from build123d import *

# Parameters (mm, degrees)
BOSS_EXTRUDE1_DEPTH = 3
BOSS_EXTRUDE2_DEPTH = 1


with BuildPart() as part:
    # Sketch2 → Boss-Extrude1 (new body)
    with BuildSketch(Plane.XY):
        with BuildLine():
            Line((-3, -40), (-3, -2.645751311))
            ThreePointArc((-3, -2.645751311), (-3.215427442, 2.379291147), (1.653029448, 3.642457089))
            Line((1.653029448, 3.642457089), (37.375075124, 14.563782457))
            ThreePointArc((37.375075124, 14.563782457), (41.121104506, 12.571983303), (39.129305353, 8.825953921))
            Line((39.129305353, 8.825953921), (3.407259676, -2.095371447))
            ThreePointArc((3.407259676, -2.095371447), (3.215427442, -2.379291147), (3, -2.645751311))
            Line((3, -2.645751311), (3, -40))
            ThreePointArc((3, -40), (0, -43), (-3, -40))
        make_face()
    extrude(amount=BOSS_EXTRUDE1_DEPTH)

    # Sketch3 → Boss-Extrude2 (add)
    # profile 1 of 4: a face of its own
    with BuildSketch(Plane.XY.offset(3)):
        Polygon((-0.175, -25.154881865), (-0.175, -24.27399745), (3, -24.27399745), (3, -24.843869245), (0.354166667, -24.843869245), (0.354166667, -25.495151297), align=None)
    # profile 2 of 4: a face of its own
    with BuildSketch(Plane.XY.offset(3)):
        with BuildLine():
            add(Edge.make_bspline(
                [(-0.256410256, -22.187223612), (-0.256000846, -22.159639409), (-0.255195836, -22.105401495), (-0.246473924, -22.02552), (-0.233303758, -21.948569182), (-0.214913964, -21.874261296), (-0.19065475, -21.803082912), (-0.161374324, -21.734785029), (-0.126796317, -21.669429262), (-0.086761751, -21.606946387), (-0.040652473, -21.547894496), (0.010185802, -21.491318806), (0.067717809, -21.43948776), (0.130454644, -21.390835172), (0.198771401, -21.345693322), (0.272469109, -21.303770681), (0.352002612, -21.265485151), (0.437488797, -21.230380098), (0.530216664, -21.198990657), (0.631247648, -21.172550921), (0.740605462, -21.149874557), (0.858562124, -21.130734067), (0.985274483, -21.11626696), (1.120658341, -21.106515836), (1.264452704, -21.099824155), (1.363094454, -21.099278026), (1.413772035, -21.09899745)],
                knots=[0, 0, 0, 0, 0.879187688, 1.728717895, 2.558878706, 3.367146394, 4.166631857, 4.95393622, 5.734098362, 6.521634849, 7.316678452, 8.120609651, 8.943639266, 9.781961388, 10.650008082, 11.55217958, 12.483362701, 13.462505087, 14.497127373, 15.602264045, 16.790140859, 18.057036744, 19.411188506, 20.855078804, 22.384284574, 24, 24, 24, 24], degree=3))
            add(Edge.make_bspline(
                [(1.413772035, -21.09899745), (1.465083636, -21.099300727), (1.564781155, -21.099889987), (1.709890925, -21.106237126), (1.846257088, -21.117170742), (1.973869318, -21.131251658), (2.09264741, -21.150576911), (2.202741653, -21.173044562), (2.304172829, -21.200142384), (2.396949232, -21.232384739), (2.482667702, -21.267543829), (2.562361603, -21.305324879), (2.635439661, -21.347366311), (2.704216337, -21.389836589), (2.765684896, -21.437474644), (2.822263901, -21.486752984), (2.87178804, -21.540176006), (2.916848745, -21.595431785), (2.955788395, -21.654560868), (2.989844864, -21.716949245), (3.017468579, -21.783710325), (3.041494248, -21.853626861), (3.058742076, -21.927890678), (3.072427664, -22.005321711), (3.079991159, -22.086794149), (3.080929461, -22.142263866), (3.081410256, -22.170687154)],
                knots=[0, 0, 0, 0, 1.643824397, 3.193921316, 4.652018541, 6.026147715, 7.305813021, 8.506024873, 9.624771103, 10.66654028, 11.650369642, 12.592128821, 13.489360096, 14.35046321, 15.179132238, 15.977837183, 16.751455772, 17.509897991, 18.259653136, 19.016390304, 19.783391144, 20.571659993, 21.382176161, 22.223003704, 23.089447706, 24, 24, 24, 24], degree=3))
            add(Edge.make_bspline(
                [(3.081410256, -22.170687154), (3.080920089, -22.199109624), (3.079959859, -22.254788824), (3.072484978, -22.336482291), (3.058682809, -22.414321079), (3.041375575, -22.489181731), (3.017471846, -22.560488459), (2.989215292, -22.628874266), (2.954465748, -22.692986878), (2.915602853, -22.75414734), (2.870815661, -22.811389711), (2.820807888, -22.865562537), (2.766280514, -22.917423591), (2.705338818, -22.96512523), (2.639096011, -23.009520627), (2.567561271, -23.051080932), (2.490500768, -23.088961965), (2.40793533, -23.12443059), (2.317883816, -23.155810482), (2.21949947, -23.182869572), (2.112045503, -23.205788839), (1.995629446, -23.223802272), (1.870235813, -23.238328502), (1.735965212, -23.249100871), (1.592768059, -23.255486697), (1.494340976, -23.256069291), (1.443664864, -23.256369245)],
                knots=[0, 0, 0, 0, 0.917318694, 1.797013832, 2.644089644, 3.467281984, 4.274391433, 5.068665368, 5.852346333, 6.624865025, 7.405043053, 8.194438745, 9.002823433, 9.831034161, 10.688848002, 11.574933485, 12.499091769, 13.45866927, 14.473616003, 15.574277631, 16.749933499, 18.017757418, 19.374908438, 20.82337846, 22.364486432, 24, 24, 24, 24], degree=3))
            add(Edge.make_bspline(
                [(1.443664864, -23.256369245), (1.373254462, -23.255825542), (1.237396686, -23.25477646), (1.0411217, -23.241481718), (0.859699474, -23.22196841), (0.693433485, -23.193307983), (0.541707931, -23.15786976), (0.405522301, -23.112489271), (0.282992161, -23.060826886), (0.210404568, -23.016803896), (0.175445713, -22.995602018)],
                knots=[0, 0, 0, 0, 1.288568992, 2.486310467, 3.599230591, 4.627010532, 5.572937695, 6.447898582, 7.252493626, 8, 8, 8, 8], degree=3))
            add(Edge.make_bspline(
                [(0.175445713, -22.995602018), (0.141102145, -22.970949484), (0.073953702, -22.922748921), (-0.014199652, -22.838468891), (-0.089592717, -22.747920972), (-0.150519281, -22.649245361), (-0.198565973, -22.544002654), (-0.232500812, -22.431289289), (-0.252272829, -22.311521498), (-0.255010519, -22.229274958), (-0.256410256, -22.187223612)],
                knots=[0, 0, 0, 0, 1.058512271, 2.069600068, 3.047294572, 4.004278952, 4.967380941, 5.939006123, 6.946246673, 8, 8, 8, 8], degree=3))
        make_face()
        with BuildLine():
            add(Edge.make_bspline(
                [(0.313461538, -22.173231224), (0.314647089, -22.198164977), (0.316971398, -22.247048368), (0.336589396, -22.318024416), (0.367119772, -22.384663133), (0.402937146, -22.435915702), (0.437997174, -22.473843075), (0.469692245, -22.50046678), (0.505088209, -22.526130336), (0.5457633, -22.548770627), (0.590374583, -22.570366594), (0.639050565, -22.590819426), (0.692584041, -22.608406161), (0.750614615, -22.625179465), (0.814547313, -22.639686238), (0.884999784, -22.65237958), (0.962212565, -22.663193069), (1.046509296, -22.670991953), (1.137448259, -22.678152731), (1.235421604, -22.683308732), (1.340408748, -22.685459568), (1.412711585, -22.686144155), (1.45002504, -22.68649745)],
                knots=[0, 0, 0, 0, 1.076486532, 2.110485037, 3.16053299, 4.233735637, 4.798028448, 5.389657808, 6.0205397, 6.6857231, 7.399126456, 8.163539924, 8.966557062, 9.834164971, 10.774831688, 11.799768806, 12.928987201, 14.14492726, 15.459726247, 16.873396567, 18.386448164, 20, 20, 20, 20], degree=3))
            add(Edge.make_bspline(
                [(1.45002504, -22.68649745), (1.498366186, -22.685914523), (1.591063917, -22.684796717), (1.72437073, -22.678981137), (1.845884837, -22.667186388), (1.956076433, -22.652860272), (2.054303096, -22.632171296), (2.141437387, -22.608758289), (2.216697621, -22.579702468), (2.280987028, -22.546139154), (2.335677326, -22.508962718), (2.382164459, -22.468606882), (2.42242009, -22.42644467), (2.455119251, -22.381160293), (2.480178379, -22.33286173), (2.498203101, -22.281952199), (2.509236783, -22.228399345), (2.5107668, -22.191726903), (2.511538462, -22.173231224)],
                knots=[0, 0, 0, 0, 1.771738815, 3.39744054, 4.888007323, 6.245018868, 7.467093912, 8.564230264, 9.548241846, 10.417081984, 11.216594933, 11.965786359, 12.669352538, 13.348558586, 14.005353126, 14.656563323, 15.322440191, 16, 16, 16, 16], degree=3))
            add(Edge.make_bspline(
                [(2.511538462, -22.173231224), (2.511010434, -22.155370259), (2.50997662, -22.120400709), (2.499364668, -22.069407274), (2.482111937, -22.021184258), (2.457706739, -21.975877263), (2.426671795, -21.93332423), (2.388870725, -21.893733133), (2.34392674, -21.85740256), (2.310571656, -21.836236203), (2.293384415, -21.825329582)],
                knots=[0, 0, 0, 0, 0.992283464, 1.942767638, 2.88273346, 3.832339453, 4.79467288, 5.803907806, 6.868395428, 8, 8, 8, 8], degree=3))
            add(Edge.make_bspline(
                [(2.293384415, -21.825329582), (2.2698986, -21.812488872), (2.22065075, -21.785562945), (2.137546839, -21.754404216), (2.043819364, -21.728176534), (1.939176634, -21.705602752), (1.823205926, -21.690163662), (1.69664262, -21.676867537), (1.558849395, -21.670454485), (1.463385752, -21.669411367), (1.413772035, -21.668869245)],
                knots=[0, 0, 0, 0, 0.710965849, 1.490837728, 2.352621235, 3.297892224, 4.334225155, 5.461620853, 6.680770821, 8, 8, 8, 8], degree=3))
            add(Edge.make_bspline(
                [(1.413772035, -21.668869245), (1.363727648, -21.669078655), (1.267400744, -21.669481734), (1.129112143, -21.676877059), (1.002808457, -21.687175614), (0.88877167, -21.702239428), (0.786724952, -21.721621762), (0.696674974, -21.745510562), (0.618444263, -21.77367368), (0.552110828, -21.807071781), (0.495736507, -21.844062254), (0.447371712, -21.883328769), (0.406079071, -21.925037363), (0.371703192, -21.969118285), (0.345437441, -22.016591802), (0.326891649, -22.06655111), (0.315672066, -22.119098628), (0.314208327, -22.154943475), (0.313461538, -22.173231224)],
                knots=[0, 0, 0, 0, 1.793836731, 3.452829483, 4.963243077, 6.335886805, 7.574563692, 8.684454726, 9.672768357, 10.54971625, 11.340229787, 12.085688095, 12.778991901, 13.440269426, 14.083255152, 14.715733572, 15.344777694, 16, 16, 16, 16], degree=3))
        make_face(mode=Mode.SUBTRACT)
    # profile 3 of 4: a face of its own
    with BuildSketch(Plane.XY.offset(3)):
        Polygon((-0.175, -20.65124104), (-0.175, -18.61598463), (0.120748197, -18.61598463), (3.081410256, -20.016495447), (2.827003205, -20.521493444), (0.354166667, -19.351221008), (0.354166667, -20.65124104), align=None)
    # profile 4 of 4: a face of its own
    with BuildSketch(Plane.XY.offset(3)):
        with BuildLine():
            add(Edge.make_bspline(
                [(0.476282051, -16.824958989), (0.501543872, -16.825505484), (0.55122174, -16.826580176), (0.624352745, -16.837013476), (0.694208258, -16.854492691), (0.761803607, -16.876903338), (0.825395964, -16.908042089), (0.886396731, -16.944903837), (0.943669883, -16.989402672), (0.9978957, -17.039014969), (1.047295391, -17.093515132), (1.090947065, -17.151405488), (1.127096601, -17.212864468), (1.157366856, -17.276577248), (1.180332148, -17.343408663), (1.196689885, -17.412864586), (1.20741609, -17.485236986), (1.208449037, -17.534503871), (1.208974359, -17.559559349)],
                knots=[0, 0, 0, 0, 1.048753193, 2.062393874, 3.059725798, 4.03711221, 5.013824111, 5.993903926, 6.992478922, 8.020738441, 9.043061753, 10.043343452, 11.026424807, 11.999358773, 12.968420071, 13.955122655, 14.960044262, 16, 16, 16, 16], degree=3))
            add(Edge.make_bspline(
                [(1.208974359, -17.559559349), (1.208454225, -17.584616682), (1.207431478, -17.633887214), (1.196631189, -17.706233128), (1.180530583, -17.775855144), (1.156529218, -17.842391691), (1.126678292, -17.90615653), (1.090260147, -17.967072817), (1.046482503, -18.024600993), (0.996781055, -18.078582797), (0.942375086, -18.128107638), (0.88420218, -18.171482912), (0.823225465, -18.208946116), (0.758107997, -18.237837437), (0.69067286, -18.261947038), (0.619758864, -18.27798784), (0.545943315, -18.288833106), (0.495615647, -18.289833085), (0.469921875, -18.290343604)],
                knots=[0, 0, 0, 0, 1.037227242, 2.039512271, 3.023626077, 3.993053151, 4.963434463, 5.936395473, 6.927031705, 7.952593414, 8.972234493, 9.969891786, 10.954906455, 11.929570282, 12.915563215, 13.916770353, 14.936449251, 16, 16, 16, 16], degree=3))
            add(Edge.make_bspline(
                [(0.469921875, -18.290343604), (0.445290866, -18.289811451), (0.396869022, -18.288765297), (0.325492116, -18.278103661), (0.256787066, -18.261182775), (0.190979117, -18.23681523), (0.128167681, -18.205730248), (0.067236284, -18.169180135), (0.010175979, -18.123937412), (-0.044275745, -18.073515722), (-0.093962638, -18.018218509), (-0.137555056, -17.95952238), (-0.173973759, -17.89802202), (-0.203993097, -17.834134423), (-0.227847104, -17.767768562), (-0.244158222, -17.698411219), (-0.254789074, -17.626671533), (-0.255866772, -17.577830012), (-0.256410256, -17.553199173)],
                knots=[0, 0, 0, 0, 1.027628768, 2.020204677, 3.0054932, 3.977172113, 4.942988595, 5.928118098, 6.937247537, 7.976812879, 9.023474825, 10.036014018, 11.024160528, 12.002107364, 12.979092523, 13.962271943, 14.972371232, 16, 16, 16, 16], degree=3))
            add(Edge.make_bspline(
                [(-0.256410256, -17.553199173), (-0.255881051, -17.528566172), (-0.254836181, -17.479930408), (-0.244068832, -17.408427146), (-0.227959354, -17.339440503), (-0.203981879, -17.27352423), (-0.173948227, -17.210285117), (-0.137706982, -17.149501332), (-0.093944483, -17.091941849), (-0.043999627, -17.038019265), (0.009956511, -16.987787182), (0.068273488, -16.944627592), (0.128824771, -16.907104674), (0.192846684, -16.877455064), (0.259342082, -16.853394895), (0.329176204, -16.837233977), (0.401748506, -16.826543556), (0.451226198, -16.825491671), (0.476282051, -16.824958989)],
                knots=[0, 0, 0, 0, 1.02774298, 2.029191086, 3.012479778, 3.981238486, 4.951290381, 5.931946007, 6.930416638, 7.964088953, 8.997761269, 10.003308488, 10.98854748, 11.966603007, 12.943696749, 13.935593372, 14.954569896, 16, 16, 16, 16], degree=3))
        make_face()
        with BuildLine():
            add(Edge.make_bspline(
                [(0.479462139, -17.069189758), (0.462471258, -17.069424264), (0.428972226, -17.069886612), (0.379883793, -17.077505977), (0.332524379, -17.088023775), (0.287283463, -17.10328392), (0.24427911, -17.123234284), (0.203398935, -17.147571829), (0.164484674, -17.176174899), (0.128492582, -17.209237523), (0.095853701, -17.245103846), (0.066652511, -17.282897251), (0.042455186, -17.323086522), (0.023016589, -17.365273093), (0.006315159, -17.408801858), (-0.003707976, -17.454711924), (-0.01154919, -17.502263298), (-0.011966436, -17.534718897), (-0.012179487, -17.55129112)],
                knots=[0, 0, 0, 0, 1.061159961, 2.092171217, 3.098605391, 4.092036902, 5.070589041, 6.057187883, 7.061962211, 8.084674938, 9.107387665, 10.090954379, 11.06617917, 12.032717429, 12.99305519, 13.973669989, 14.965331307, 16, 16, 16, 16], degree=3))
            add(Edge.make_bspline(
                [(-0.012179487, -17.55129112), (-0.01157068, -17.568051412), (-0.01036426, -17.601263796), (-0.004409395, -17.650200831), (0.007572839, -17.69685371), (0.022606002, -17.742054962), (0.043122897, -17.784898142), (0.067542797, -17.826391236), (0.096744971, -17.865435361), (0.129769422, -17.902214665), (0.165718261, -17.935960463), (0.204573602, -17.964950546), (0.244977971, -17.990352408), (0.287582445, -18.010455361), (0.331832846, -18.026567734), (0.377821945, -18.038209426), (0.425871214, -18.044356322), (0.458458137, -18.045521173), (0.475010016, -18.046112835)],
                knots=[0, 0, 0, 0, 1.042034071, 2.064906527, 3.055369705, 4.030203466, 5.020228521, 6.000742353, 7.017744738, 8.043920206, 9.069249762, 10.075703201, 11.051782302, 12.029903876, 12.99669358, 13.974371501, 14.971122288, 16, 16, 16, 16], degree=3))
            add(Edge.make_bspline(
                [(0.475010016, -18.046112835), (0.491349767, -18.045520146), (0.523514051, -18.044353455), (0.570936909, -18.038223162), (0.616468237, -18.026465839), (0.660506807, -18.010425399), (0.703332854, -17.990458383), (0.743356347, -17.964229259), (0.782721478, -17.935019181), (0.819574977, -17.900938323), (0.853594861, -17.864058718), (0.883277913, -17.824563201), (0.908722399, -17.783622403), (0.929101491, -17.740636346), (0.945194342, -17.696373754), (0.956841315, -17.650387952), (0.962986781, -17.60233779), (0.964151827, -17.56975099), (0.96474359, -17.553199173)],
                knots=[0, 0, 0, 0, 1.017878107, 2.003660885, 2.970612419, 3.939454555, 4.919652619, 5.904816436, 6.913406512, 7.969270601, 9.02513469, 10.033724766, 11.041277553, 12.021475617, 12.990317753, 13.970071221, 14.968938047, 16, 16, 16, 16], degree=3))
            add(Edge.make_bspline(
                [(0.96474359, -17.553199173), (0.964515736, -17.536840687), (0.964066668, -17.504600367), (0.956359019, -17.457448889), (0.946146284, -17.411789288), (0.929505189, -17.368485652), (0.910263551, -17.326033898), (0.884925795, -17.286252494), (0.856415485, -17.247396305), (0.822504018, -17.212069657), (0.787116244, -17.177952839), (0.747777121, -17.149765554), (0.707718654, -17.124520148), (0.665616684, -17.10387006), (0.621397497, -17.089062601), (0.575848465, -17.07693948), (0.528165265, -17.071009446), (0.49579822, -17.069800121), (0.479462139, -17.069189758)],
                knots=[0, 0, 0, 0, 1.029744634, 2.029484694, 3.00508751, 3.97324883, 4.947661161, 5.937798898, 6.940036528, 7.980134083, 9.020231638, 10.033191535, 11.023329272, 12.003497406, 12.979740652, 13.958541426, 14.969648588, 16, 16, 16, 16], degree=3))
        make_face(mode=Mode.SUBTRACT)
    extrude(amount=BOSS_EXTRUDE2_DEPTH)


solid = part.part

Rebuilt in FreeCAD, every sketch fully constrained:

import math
import FreeCAD as App
import Part
import Sketcher

V = App.Vector
Q = App.Units.Quantity

doc = App.newDocument("Part")
body = doc.addObject("PartDesign::Body", "Body")

# Sketch on XY plane
sketch1 = body.newObject("Sketcher::SketchObject", "Sketch")
sketch1.AttachmentSupport = (doc.getObject("XY_Plane"), [""])
sketch1.MapMode = "FlatFace"
sketch1.addGeometry([
    Part.LineSegment(V(-3, -2.6, 0), V(-3, -40, 0)),  # 0
    Part.ArcOfCircle(Part.Circle(V(0, -40, 0), V(0, 0, 1), 3), math.radians(180), math.radians(360)),  # 1
    Part.LineSegment(V(3, -40, 0), V(3, -2.6, 0)),  # 2
    Part.ArcOfCircle(Part.Circle(V(0, 0, 0), V(0, 0, 1), 4), math.radians(-41.41), math.radians(-31.59)),  # 3
    Part.LineSegment(V(3.4, -2.1, 0), V(39.1, 8.8, 0)),  # 4
    Part.ArcOfCircle(Part.Circle(V(38.3, 11.7, 0), V(0, 0, 1), 3), math.radians(-73), math.radians(107)),  # 5
    Part.LineSegment(V(37.4, 14.6, 0), V(1.7, 3.6, 0)),  # 6
    Part.ArcOfCircle(Part.Circle(V(0, 0, 0), V(0, 0, 1), 4), math.radians(66), math.radians(221)),  # 7
], False)
sketch1.addConstraint([
    Sketcher.Constraint("Tangent", 0, 2, 1, 1),
    Sketcher.Constraint("Tangent", 1, 2, 2, 1),
    Sketcher.Constraint("Coincident", 2, 2, 3, 1),
    Sketcher.Constraint("Coincident", 3, 2, 4, 1),
    Sketcher.Constraint("Tangent", 4, 2, 5, 1),
    Sketcher.Constraint("Tangent", 5, 2, 6, 1),
    Sketcher.Constraint("Coincident", 6, 2, 7, 1),
    Sketcher.Constraint("Coincident", 7, 2, 0, 1),
    Sketcher.Constraint("Vertical", 0),
    Sketcher.Constraint("Vertical", 2),
    Sketcher.Constraint("Coincident", 3, 3, -1, 1),
    Sketcher.Constraint("Coincident", 7, 3, -1, 1),
    Sketcher.Constraint("Equal", 1, 5),
    Sketcher.Constraint("Equal", 3, 7),
    Sketcher.Constraint("PointOnObject", 1, 3, -2),
    Sketcher.Constraint("Parallel", 4, 6),
    Sketcher.Constraint("Equal", 4, 6),
    Sketcher.Constraint("Radius", 1, 3.0),
    Sketcher.Constraint("Radius", 3, 4.0),
    Sketcher.Constraint("Angle", 4, Q("17 deg")),
    Sketcher.Constraint("DistanceY", 1, 3, -1, 1, 40.0),
    Sketcher.Constraint("Distance", 4, 37.354249),
])
pad1 = body.newObject("PartDesign::Pad", "Pad")
pad1.Profile = sketch1
pad1.Length = 3

# Sketch on XY plane
sketch2 = body.newObject("Sketcher::SketchObject", "Sketch001")
sketch2.AttachmentSupport = (doc.getObject("XY_Plane"), [""])
sketch2.MapMode = "FlatFace"
sketch2.AttachmentOffset = App.Placement(V(0, 0, 3), App.Rotation())
sketch2.addGeometry([
    Part.LineSegment(V(-0.175, -24.273997, 0), V(-0.175, -25.154882, 0)),  # 0
    Part.LineSegment(V(-0.175, -25.154882, 0), V(0.354167, -25.495151, 0)),  # 1
    Part.LineSegment(V(0.354167, -25.495151, 0), V(0.354167, -24.843869, 0)),  # 2
    Part.LineSegment(V(0.354167, -24.843869, 0), V(3, -24.843869, 0)),  # 3
    Part.LineSegment(V(3, -24.843869, 0), V(3, -24.273997, 0)),  # 4
    Part.LineSegment(V(3, -24.273997, 0), V(-0.175, -24.273997, 0)),  # 5
    Part.BSplineCurve([V(-0.25641, -22.187224, 0), V(-0.256001, -22.159639, 0), V(-0.255196, -22.105401, 0), V(-0.246474, -22.02552, 0), V(-0.233304, -21.948569, 0), V(-0.214914, -21.874261, 0), V(-0.190655, -21.803083, 0), V(-0.161374, -21.734785, 0), V(-0.126796, -21.669429, 0), V(-0.086762, -21.606946, 0), V(-0.040652, -21.547894, 0), V(0.010186, -21.491319, 0), V(0.067718, -21.439488, 0), V(0.130455, -21.390835, 0), V(0.198771, -21.345693, 0), V(0.272469, -21.303771, 0), V(0.352003, -21.265485, 0), V(0.437489, -21.23038, 0), V(0.530217, -21.198991, 0), V(0.631248, -21.172551, 0), V(0.740605, -21.149875, 0), V(0.858562, -21.130734, 0), V(0.985274, -21.116267, 0), V(1.120658, -21.106516, 0), V(1.264453, -21.099824, 0), V(1.363094, -21.099278, 0), V(1.413772, -21.098997, 0)], [4, 1, 1, 1, 1, 1, 1, 1, 1, 1, 1, 1, 1, 1, 1, 1, 1, 1, 1, 1, 1, 1, 1, 1, 4], [0, 0.879187688, 1.728717895, 2.558878706, 3.367146394, 4.166631857, 4.95393622, 5.734098362, 6.521634849, 7.316678452, 8.120609651, 8.943639266, 9.781961388, 10.650008082, 11.55217958, 12.483362701, 13.462505087, 14.497127373, 15.602264045, 16.790140859, 18.057036744, 19.411188506, 20.855078804, 22.384284574, 24], False, 3, [1, 1, 1, 1, 1, 1, 1, 1, 1, 1, 1, 1, 1, 1, 1, 1, 1, 1, 1, 1, 1, 1, 1, 1, 1, 1, 1], False),  # 6
    Part.BSplineCurve([V(0.175446, -22.995602, 0), V(0.141102, -22.970949, 0), V(0.073954, -22.922749, 0), V(-0.0142, -22.838469, 0), V(-0.089593, -22.747921, 0), V(-0.150519, -22.649245, 0), V(-0.198566, -22.544003, 0), V(-0.232501, -22.431289, 0), V(-0.252273, -22.311521, 0), V(-0.255011, -22.229275, 0), V(-0.25641, -22.187224, 0)], [4, 1, 1, 1, 1, 1, 1, 1, 4], [0, 1.058512271, 2.069600068, 3.047294572, 4.004278952, 4.967380941, 5.939006123, 6.946246673, 8], False, 3, [1, 1, 1, 1, 1, 1, 1, 1, 1, 1, 1], False),  # 7
    Part.BSplineCurve([V(1.443665, -23.256369, 0), V(1.373254, -23.255826, 0), V(1.237397, -23.254776, 0), V(1.041122, -23.241482, 0), V(0.859699, -23.221968, 0), V(0.693433, -23.193308, 0), V(0.541708, -23.15787, 0), V(0.405522, -23.112489, 0), V(0.282992, -23.060827, 0), V(0.210405, -23.016804, 0), V(0.175446, -22.995602, 0)], [4, 1, 1, 1, 1, 1, 1, 1, 4], [0, 1.288568992, 2.486310467, 3.599230591, 4.627010532, 5.572937695, 6.447898582, 7.252493626, 8], False, 3, [1, 1, 1, 1, 1, 1, 1, 1, 1, 1, 1], False),  # 8
    Part.BSplineCurve([V(3.08141, -22.170687, 0), V(3.08092, -22.19911, 0), V(3.07996, -22.254789, 0), V(3.072485, -22.336482, 0), V(3.058683, -22.414321, 0), V(3.041376, -22.489182, 0), V(3.017472, -22.560488, 0), V(2.989215, -22.628874, 0), V(2.954466, -22.692987, 0), V(2.915603, -22.754147, 0), V(2.870816, -22.81139, 0), V(2.820808, -22.865563, 0), V(2.766281, -22.917424, 0), V(2.705339, -22.965125, 0), V(2.639096, -23.009521, 0), V(2.567561, -23.051081, 0), V(2.490501, -23.088962, 0), V(2.407935, -23.124431, 0), V(2.317884, -23.15581, 0), V(2.219499, -23.18287, 0), V(2.112046, -23.205789, 0), V(1.995629, -23.223802, 0), V(1.870236, -23.238329, 0), V(1.735965, -23.249101, 0), V(1.592768, -23.255487, 0), V(1.494341, -23.256069, 0), V(1.443665, -23.256369, 0)], [4, 1, 1, 1, 1, 1, 1, 1, 1, 1, 1, 1, 1, 1, 1, 1, 1, 1, 1, 1, 1, 1, 1, 1, 4], [0, 0.917318694, 1.797013832, 2.644089644, 3.467281984, 4.274391433, 5.068665368, 5.852346333, 6.624865025, 7.405043053, 8.194438745, 9.002823433, 9.831034161, 10.688848002, 11.574933485, 12.499091769, 13.45866927, 14.473616003, 15.574277631, 16.749933499, 18.017757418, 19.374908438, 20.82337846, 22.364486432, 24], False, 3, [1, 1, 1, 1, 1, 1, 1, 1, 1, 1, 1, 1, 1, 1, 1, 1, 1, 1, 1, 1, 1, 1, 1, 1, 1, 1, 1], False),  # 9
    Part.BSplineCurve([V(1.413772, -21.098997, 0), V(1.465084, -21.099301, 0), V(1.564781, -21.09989, 0), V(1.709891, -21.106237, 0), V(1.846257, -21.117171, 0), V(1.973869, -21.131252, 0), V(2.092647, -21.150577, 0), V(2.202742, -21.173045, 0), V(2.304173, -21.200142, 0), V(2.396949, -21.232385, 0), V(2.482668, -21.267544, 0), V(2.562362, -21.305325, 0), V(2.63544, -21.347366, 0), V(2.704216, -21.389837, 0), V(2.765685, -21.437475, 0), V(2.822264, -21.486753, 0), V(2.871788, -21.540176, 0), V(2.916849, -21.595432, 0), V(2.955788, -21.654561, 0), V(2.989845, -21.716949, 0), V(3.017469, -21.78371, 0), V(3.041494, -21.853627, 0), V(3.058742, -21.927891, 0), V(3.072428, -22.005322, 0), V(3.079991, -22.086794, 0), V(3.080929, -22.142264, 0), V(3.08141, -22.170687, 0)], [4, 1, 1, 1, 1, 1, 1, 1, 1, 1, 1, 1, 1, 1, 1, 1, 1, 1, 1, 1, 1, 1, 1, 1, 4], [0, 1.643824397, 3.193921316, 4.652018541, 6.026147715, 7.305813021, 8.506024873, 9.624771103, 10.66654028, 11.650369642, 12.592128821, 13.489360096, 14.35046321, 15.179132238, 15.977837183, 16.751455772, 17.509897991, 18.259653136, 19.016390304, 19.783391144, 20.571659993, 21.382176161, 22.223003704, 23.089447706, 24], False, 3, [1, 1, 1, 1, 1, 1, 1, 1, 1, 1, 1, 1, 1, 1, 1, 1, 1, 1, 1, 1, 1, 1, 1, 1, 1, 1, 1], False),  # 10
    Part.BSplineCurve([V(1.413772, -21.668869, 0), V(1.363728, -21.669079, 0), V(1.267401, -21.669482, 0), V(1.129112, -21.676877, 0), V(1.002808, -21.687176, 0), V(0.888772, -21.702239, 0), V(0.786725, -21.721622, 0), V(0.696675, -21.745511, 0), V(0.618444, -21.773674, 0), V(0.552111, -21.807072, 0), V(0.495737, -21.844062, 0), V(0.447372, -21.883329, 0), V(0.406079, -21.925037, 0), V(0.371703, -21.969118, 0), V(0.345437, -22.016592, 0), V(0.326892, -22.066551, 0), V(0.315672, -22.119099, 0), V(0.314208, -22.154943, 0), V(0.313462, -22.173231, 0)], [4, 1, 1, 1, 1, 1, 1, 1, 1, 1, 1, 1, 1, 1, 1, 1, 4], [0, 1.793836731, 3.452829483, 4.963243077, 6.335886805, 7.574563692, 8.684454726, 9.672768357, 10.54971625, 11.340229787, 12.085688095, 12.778991901, 13.440269426, 14.083255152, 14.715733572, 15.344777694, 16], False, 3, [1, 1, 1, 1, 1, 1, 1, 1, 1, 1, 1, 1, 1, 1, 1, 1, 1, 1, 1], False),  # 11
    Part.BSplineCurve([V(2.293384, -21.82533, 0), V(2.269899, -21.812489, 0), V(2.220651, -21.785563, 0), V(2.137547, -21.754404, 0), V(2.043819, -21.728177, 0), V(1.939177, -21.705603, 0), V(1.823206, -21.690164, 0), V(1.696643, -21.676868, 0), V(1.558849, -21.670454, 0), V(1.463386, -21.669411, 0), V(1.413772, -21.668869, 0)], [4, 1, 1, 1, 1, 1, 1, 1, 4], [0, 0.710965849, 1.490837728, 2.352621235, 3.297892224, 4.334225155, 5.461620853, 6.680770821, 8], False, 3, [1, 1, 1, 1, 1, 1, 1, 1, 1, 1, 1], False),  # 12
    Part.BSplineCurve([V(2.511538, -22.173231, 0), V(2.51101, -22.15537, 0), V(2.509977, -22.120401, 0), V(2.499365, -22.069407, 0), V(2.482112, -22.021184, 0), V(2.457707, -21.975877, 0), V(2.426672, -21.933324, 0), V(2.388871, -21.893733, 0), V(2.343927, -21.857403, 0), V(2.310572, -21.836236, 0), V(2.293384, -21.82533, 0)], [4, 1, 1, 1, 1, 1, 1, 1, 4], [0, 0.992283464, 1.942767638, 2.88273346, 3.832339453, 4.79467288, 5.803907806, 6.868395428, 8], False, 3, [1, 1, 1, 1, 1, 1, 1, 1, 1, 1, 1], False),  # 13
    Part.BSplineCurve([V(1.450025, -22.686497, 0), V(1.498366, -22.685915, 0), V(1.591064, -22.684797, 0), V(1.724371, -22.678981, 0), V(1.845885, -22.667186, 0), V(1.956076, -22.65286, 0), V(2.054303, -22.632171, 0), V(2.141437, -22.608758, 0), V(2.216698, -22.579702, 0), V(2.280987, -22.546139, 0), V(2.335677, -22.508963, 0), V(2.382164, -22.468607, 0), V(2.42242, -22.426445, 0), V(2.455119, -22.38116, 0), V(2.480178, -22.332862, 0), V(2.498203, -22.281952, 0), V(2.509237, -22.228399, 0), V(2.510767, -22.191727, 0), V(2.511538, -22.173231, 0)], [4, 1, 1, 1, 1, 1, 1, 1, 1, 1, 1, 1, 1, 1, 1, 1, 4], [0, 1.771738815, 3.39744054, 4.888007323, 6.245018868, 7.467093912, 8.564230264, 9.548241846, 10.417081984, 11.216594933, 11.965786359, 12.669352538, 13.348558586, 14.005353126, 14.656563323, 15.322440191, 16], False, 3, [1, 1, 1, 1, 1, 1, 1, 1, 1, 1, 1, 1, 1, 1, 1, 1, 1, 1, 1], False),  # 14
    Part.BSplineCurve([V(0.313462, -22.173231, 0), V(0.314647, -22.198165, 0), V(0.316971, -22.247048, 0), V(0.336589, -22.318024, 0), V(0.36712, -22.384663, 0), V(0.402937, -22.435916, 0), V(0.437997, -22.473843, 0), V(0.469692, -22.500467, 0), V(0.505088, -22.52613, 0), V(0.545763, -22.548771, 0), V(0.590375, -22.570367, 0), V(0.639051, -22.590819, 0), V(0.692584, -22.608406, 0), V(0.750615, -22.625179, 0), V(0.814547, -22.639686, 0), V(0.885, -22.65238, 0), V(0.962213, -22.663193, 0), V(1.046509, -22.670992, 0), V(1.137448, -22.678153, 0), V(1.235422, -22.683309, 0), V(1.340409, -22.68546, 0), V(1.412712, -22.686144, 0), V(1.450025, -22.686497, 0)], [4, 1, 1, 1, 1, 1, 1, 1, 1, 1, 1, 1, 1, 1, 1, 1, 1, 1, 1, 1, 4], [0, 1.076486532, 2.110485037, 3.16053299, 4.233735637, 4.798028448, 5.389657808, 6.0205397, 6.6857231, 7.399126456, 8.163539924, 8.966557062, 9.834164971, 10.774831688, 11.799768806, 12.928987201, 14.14492726, 15.459726247, 16.873396567, 18.386448164, 20], False, 3, [1, 1, 1, 1, 1, 1, 1, 1, 1, 1, 1, 1, 1, 1, 1, 1, 1, 1, 1, 1, 1, 1, 1], False),  # 15
    Part.LineSegment(V(-0.175, -18.615985, 0), V(-0.175, -20.651241, 0)),  # 16
    Part.LineSegment(V(-0.175, -20.651241, 0), V(0.354167, -20.651241, 0)),  # 17
    Part.LineSegment(V(0.354167, -20.651241, 0), V(0.354167, -19.351221, 0)),  # 18
    Part.LineSegment(V(0.354167, -19.351221, 0), V(2.827003, -20.521493, 0)),  # 19
    Part.LineSegment(V(2.827003, -20.521493, 0), V(3.08141, -20.016495, 0)),  # 20
    Part.LineSegment(V(3.08141, -20.016495, 0), V(0.120748, -18.615985, 0)),  # 21
    Part.LineSegment(V(0.120748, -18.615985, 0), V(-0.175, -18.615985, 0)),  # 22
    Part.BSplineCurve([V(0.476282, -16.824959, 0), V(0.501544, -16.825505, 0), V(0.551222, -16.82658, 0), V(0.624353, -16.837013, 0), V(0.694208, -16.854493, 0), V(0.761804, -16.876903, 0), V(0.825396, -16.908042, 0), V(0.886397, -16.944904, 0), V(0.94367, -16.989403, 0), V(0.997896, -17.039015, 0), V(1.047295, -17.093515, 0), V(1.090947, -17.151405, 0), V(1.127097, -17.212864, 0), V(1.157367, -17.276577, 0), V(1.180332, -17.343409, 0), V(1.19669, -17.412865, 0), V(1.207416, -17.485237, 0), V(1.208449, -17.534504, 0), V(1.208974, -17.559559, 0)], [4, 1, 1, 1, 1, 1, 1, 1, 1, 1, 1, 1, 1, 1, 1, 1, 4], [0, 1.048753193, 2.062393874, 3.059725798, 4.03711221, 5.013824111, 5.993903926, 6.992478922, 8.020738441, 9.043061753, 10.043343452, 11.026424807, 11.999358773, 12.968420071, 13.955122655, 14.960044262, 16], False, 3, [1, 1, 1, 1, 1, 1, 1, 1, 1, 1, 1, 1, 1, 1, 1, 1, 1, 1, 1], False),  # 23
    Part.BSplineCurve([V(-0.25641, -17.553199, 0), V(-0.255881, -17.528566, 0), V(-0.254836, -17.47993, 0), V(-0.244069, -17.408427, 0), V(-0.227959, -17.339441, 0), V(-0.203982, -17.273524, 0), V(-0.173948, -17.210285, 0), V(-0.137707, -17.149501, 0), V(-0.093944, -17.091942, 0), V(-0.044, -17.038019, 0), V(0.009957, -16.987787, 0), V(0.068273, -16.944628, 0), V(0.128825, -16.907105, 0), V(0.192847, -16.877455, 0), V(0.259342, -16.853395, 0), V(0.329176, -16.837234, 0), V(0.401749, -16.826544, 0), V(0.451226, -16.825492, 0), V(0.476282, -16.824959, 0)], [4, 1, 1, 1, 1, 1, 1, 1, 1, 1, 1, 1, 1, 1, 1, 1, 4], [0, 1.02774298, 2.029191086, 3.012479778, 3.981238486, 4.951290381, 5.931946007, 6.930416638, 7.964088953, 8.997761269, 10.003308488, 10.98854748, 11.966603007, 12.943696749, 13.935593372, 14.954569896, 16], False, 3, [1, 1, 1, 1, 1, 1, 1, 1, 1, 1, 1, 1, 1, 1, 1, 1, 1, 1, 1], False),  # 24
    Part.BSplineCurve([V(0.469922, -18.290344, 0), V(0.445291, -18.289811, 0), V(0.396869, -18.288765, 0), V(0.325492, -18.278104, 0), V(0.256787, -18.261183, 0), V(0.190979, -18.236815, 0), V(0.128168, -18.20573, 0), V(0.067236, -18.16918, 0), V(0.010176, -18.123937, 0), V(-0.044276, -18.073516, 0), V(-0.093963, -18.018219, 0), V(-0.137555, -17.959522, 0), V(-0.173974, -17.898022, 0), V(-0.203993, -17.834134, 0), V(-0.227847, -17.767769, 0), V(-0.244158, -17.698411, 0), V(-0.254789, -17.626672, 0), V(-0.255867, -17.57783, 0), V(-0.25641, -17.553199, 0)], [4, 1, 1, 1, 1, 1, 1, 1, 1, 1, 1, 1, 1, 1, 1, 1, 4], [0, 1.027628768, 2.020204677, 3.0054932, 3.977172113, 4.942988595, 5.928118098, 6.937247537, 7.976812879, 9.023474825, 10.036014018, 11.024160528, 12.002107364, 12.979092523, 13.962271943, 14.972371232, 16], False, 3, [1, 1, 1, 1, 1, 1, 1, 1, 1, 1, 1, 1, 1, 1, 1, 1, 1, 1, 1], False),  # 25
    Part.BSplineCurve([V(1.208974, -17.559559, 0), V(1.208454, -17.584617, 0), V(1.207431, -17.633887, 0), V(1.196631, -17.706233, 0), V(1.180531, -17.775855, 0), V(1.156529, -17.842392, 0), V(1.126678, -17.906157, 0), V(1.09026, -17.967073, 0), V(1.046483, -18.024601, 0), V(0.996781, -18.078583, 0), V(0.942375, -18.128108, 0), V(0.884202, -18.171483, 0), V(0.823225, -18.208946, 0), V(0.758108, -18.237837, 0), V(0.690673, -18.261947, 0), V(0.619759, -18.277988, 0), V(0.545943, -18.288833, 0), V(0.495616, -18.289833, 0), V(0.469922, -18.290344, 0)], [4, 1, 1, 1, 1, 1, 1, 1, 1, 1, 1, 1, 1, 1, 1, 1, 4], [0, 1.037227242, 2.039512271, 3.023626077, 3.993053151, 4.963434463, 5.936395473, 6.927031705, 7.952593414, 8.972234493, 9.969891786, 10.954906455, 11.929570282, 12.915563215, 13.916770353, 14.936449251, 16], False, 3, [1, 1, 1, 1, 1, 1, 1, 1, 1, 1, 1, 1, 1, 1, 1, 1, 1, 1, 1], False),  # 26
    Part.BSplineCurve([V(0.964744, -17.553199, 0), V(0.964516, -17.536841, 0), V(0.964067, -17.5046, 0), V(0.956359, -17.457449, 0), V(0.946146, -17.411789, 0), V(0.929505, -17.368486, 0), V(0.910264, -17.326034, 0), V(0.884926, -17.286252, 0), V(0.856415, -17.247396, 0), V(0.822504, -17.21207, 0), V(0.787116, -17.177953, 0), V(0.747777, -17.149766, 0), V(0.707719, -17.12452, 0), V(0.665617, -17.10387, 0), V(0.621397, -17.089063, 0), V(0.575848, -17.076939, 0), V(0.528165, -17.071009, 0), V(0.495798, -17.0698, 0), V(0.479462, -17.06919, 0)], [4, 1, 1, 1, 1, 1, 1, 1, 1, 1, 1, 1, 1, 1, 1, 1, 4], [0, 1.029744634, 2.029484694, 3.00508751, 3.97324883, 4.947661161, 5.937798898, 6.940036528, 7.980134083, 9.020231638, 10.033191535, 11.023329272, 12.003497406, 12.979740652, 13.958541426, 14.969648588, 16], False, 3, [1, 1, 1, 1, 1, 1, 1, 1, 1, 1, 1, 1, 1, 1, 1, 1, 1, 1, 1], False),  # 27
    Part.BSplineCurve([V(0.47501, -18.046113, 0), V(0.49135, -18.04552, 0), V(0.523514, -18.044353, 0), V(0.570937, -18.038223, 0), V(0.616468, -18.026466, 0), V(0.660507, -18.010425, 0), V(0.703333, -17.990458, 0), V(0.743356, -17.964229, 0), V(0.782721, -17.935019, 0), V(0.819575, -17.900938, 0), V(0.853595, -17.864059, 0), V(0.883278, -17.824563, 0), V(0.908722, -17.783622, 0), V(0.929101, -17.740636, 0), V(0.945194, -17.696374, 0), V(0.956841, -17.650388, 0), V(0.962987, -17.602338, 0), V(0.964152, -17.569751, 0), V(0.964744, -17.553199, 0)], [4, 1, 1, 1, 1, 1, 1, 1, 1, 1, 1, 1, 1, 1, 1, 1, 4], [0, 1.017878107, 2.003660885, 2.970612419, 3.939454555, 4.919652619, 5.904816436, 6.913406512, 7.969270601, 9.02513469, 10.033724766, 11.041277553, 12.021475617, 12.990317753, 13.970071221, 14.968938047, 16], False, 3, [1, 1, 1, 1, 1, 1, 1, 1, 1, 1, 1, 1, 1, 1, 1, 1, 1, 1, 1], False),  # 28
    Part.BSplineCurve([V(-0.012179, -17.551291, 0), V(-0.011571, -17.568051, 0), V(-0.010364, -17.601264, 0), V(-0.004409, -17.650201, 0), V(0.007573, -17.696854, 0), V(0.022606, -17.742055, 0), V(0.043123, -17.784898, 0), V(0.067543, -17.826391, 0), V(0.096745, -17.865435, 0), V(0.129769, -17.902215, 0), V(0.165718, -17.93596, 0), V(0.204574, -17.964951, 0), V(0.244978, -17.990352, 0), V(0.287582, -18.010455, 0), V(0.331833, -18.026568, 0), V(0.377822, -18.038209, 0), V(0.425871, -18.044356, 0), V(0.458458, -18.045521, 0), V(0.47501, -18.046113, 0)], [4, 1, 1, 1, 1, 1, 1, 1, 1, 1, 1, 1, 1, 1, 1, 1, 4], [0, 1.042034071, 2.064906527, 3.055369705, 4.030203466, 5.020228521, 6.000742353, 7.017744738, 8.043920206, 9.069249762, 10.075703201, 11.051782302, 12.029903876, 12.99669358, 13.974371501, 14.971122288, 16], False, 3, [1, 1, 1, 1, 1, 1, 1, 1, 1, 1, 1, 1, 1, 1, 1, 1, 1, 1, 1], False),  # 29
    Part.BSplineCurve([V(0.479462, -17.06919, 0), V(0.462471, -17.069424, 0), V(0.428972, -17.069887, 0), V(0.379884, -17.077506, 0), V(0.332524, -17.088024, 0), V(0.287283, -17.103284, 0), V(0.244279, -17.123234, 0), V(0.203399, -17.147572, 0), V(0.164485, -17.176175, 0), V(0.128493, -17.209238, 0), V(0.095854, -17.245104, 0), V(0.066653, -17.282897, 0), V(0.042455, -17.323087, 0), V(0.023017, -17.365273, 0), V(0.006315, -17.408802, 0), V(-0.003708, -17.454712, 0), V(-0.011549, -17.502263, 0), V(-0.011966, -17.534719, 0), V(-0.012179, -17.551291, 0)], [4, 1, 1, 1, 1, 1, 1, 1, 1, 1, 1, 1, 1, 1, 1, 1, 4], [0, 1.061159961, 2.092171217, 3.098605391, 4.092036902, 5.070589041, 6.057187883, 7.061962211, 8.084674938, 9.107387665, 10.090954379, 11.06617917, 12.032717429, 12.99305519, 13.973669989, 14.965331307, 16], False, 3, [1, 1, 1, 1, 1, 1, 1, 1, 1, 1, 1, 1, 1, 1, 1, 1, 1, 1, 1], False),  # 30
], False)
sketch2.addConstraint([
    Sketcher.Constraint("Block", 6),
    Sketcher.Constraint("Block", 7),
    Sketcher.Constraint("Block", 8),
    Sketcher.Constraint("Block", 9),
    Sketcher.Constraint("Block", 10),
    Sketcher.Constraint("Block", 11),
    Sketcher.Constraint("Block", 12),
    Sketcher.Constraint("Block", 13),
    Sketcher.Constraint("Block", 14),
    Sketcher.Constraint("Block", 15),
    Sketcher.Constraint("Block", 23),
    Sketcher.Constraint("Block", 24),
    Sketcher.Constraint("Block", 25),
    Sketcher.Constraint("Block", 26),
    Sketcher.Constraint("Block", 27),
    Sketcher.Constraint("Block", 28),
    Sketcher.Constraint("Block", 29),
    Sketcher.Constraint("Block", 30),
    Sketcher.Constraint("Coincident", 0, 2, 1, 1),
    Sketcher.Constraint("Coincident", 1, 2, 2, 1),
    Sketcher.Constraint("Coincident", 2, 2, 3, 1),
    Sketcher.Constraint("Coincident", 3, 2, 4, 1),
    Sketcher.Constraint("Coincident", 4, 2, 5, 1),
    Sketcher.Constraint("Coincident", 5, 2, 0, 1),
    Sketcher.Constraint("Coincident", 16, 2, 17, 1),
    Sketcher.Constraint("Coincident", 17, 2, 18, 1),
    Sketcher.Constraint("Coincident", 18, 2, 19, 1),
    Sketcher.Constraint("Coincident", 19, 2, 20, 1),
    Sketcher.Constraint("Coincident", 20, 2, 21, 1),
    Sketcher.Constraint("Coincident", 21, 2, 22, 1),
    Sketcher.Constraint("Coincident", 22, 2, 16, 1),
    Sketcher.Constraint("Vertical", 0),
    Sketcher.Constraint("Vertical", 2),
    Sketcher.Constraint("Horizontal", 3),
    Sketcher.Constraint("Vertical", 4),
    Sketcher.Constraint("Horizontal", 5),
    Sketcher.Constraint("Vertical", 16),
    Sketcher.Constraint("Horizontal", 17),
    Sketcher.Constraint("Vertical", 18),
    Sketcher.Constraint("Horizontal", 22),
    Sketcher.Constraint("Vertical", 5, 2, 16, 2),
    Sketcher.Constraint("Vertical", 2, 2, 17, 2),
    Sketcher.Constraint("DistanceX", -1, 1, 3, 2, 3.0),
    Sketcher.Constraint("DistanceX", 5, 2, 5, 1, 3.175),
    Sketcher.Constraint("DistanceX", 22, 2, 22, 1, 0.295748),
    Sketcher.Constraint("DistanceY", 4, 1, 4, 2, 0.569872),
    Sketcher.Constraint("DistanceY", 18, 1, 18, 2, 1.30002),
    Sketcher.Constraint("Distance", 20, 0.565461),
    Sketcher.Constraint("DistanceX", 3, 1, 3, 2, 2.645833),
    Sketcher.Constraint("DistanceY", 0, 2, 0, 1, 0.880884),
    Sketcher.Constraint("DistanceY", 2, 1, 2, 2, 0.651282),
    Sketcher.Constraint("DistanceY", 16, 2, 16, 1, 2.035256),
    Sketcher.Constraint("DistanceY", 0, 2, -1, 1, 25.154882),
    Sketcher.Constraint("DistanceY", 16, 2, -1, 1, 20.651241),
    Sketcher.Constraint("DistanceX", -1, 1, 20, 2, 3.08141),
    Sketcher.Constraint("DistanceY", 20, 2, 21, 2, 1.400511),
    Sketcher.Constraint("DistanceY", 19, 2, 21, 2, 1.905509),
])
pad2 = body.newObject("PartDesign::Pad", "Pad001")
pad2.Profile = sketch2
pad2.Length = 1

doc.recompute()
